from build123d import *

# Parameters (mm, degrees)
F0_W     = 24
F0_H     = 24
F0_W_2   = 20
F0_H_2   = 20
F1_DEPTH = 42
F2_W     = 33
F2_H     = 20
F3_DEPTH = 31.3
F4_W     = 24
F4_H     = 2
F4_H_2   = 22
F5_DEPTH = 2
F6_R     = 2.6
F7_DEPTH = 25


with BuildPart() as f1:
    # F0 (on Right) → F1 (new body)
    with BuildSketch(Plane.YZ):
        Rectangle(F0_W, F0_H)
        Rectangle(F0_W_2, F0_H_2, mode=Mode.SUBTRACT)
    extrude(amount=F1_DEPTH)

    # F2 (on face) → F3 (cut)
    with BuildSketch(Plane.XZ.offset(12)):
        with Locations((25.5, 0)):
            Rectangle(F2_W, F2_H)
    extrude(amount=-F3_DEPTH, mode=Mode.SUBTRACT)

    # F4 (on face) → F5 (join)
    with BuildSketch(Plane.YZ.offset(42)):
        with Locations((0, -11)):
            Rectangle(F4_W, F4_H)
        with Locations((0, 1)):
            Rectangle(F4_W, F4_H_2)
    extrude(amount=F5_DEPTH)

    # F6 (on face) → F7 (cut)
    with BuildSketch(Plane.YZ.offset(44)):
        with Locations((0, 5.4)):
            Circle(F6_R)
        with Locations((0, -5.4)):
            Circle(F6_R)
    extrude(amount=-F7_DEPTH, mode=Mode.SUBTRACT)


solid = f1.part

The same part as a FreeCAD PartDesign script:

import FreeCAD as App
import Part
import Sketcher
from FreeCAD import Vector

doc = App.newDocument("Part")
body = doc.addObject("PartDesign::Body", "Body")

# Sketch on YZ plane
sketch1 = body.newObject("Sketcher::SketchObject", "Sketch")
sketch1.AttachmentSupport = (doc.getObject("YZ_Plane"), [""])
sketch1.MapMode = "FlatFace"
sketch1.addGeometry([
    Part.LineSegment(Vector(-12, 12, 0), Vector(-12, -12, 0)),  # 0
    Part.LineSegment(Vector(-12, -12, 0), Vector(12, -12, 0)),  # 1
    Part.LineSegment(Vector(12, -12, 0), Vector(12, 12, 0)),  # 2
    Part.LineSegment(Vector(12, 12, 0), Vector(-12, 12, 0)),  # 3
    Part.LineSegment(Vector(10, -10, 0), Vector(-10, -10, 0)),  # 4
    Part.LineSegment(Vector(-10, -10, 0), Vector(-10, 10, 0)),  # 5
    Part.LineSegment(Vector(-10, 10, 0), Vector(10, 10, 0)),  # 6
    Part.LineSegment(Vector(10, 10, 0), Vector(10, -10, 0)),  # 7
], False)
sketch1.addConstraint([
    Sketcher.Constraint("Coincident", 0, 2, 1, 1),
    Sketcher.Constraint("Coincident", 1, 2, 2, 1),
    Sketcher.Constraint("Coincident", 2, 2, 3, 1),
    Sketcher.Constraint("Coincident", 3, 2, 0, 1),
    Sketcher.Constraint("Coincident", 4, 2, 5, 1),
    Sketcher.Constraint("Coincident", 5, 2, 6, 1),
    Sketcher.Constraint("Coincident", 6, 2, 7, 1),
    Sketcher.Constraint("Coincident", 7, 2, 4, 1),
    Sketcher.Constraint("Vertical", 0),
    Sketcher.Constraint("Horizontal", 1),
    Sketcher.Constraint("Vertical", 2),
    Sketcher.Constraint("Horizontal", 3),
    Sketcher.Constraint("Horizontal", 4),
    Sketcher.Constraint("Vertical", 5),
    Sketcher.Constraint("Horizontal", 6),
    Sketcher.Constraint("Vertical", 7),
    Sketcher.Constraint("Symmetric", 0, 2, 2, 2, -1, 1),
    Sketcher.Constraint("Symmetric", 4, 2, 6, 2, -1, 1),
    Sketcher.Constraint("Equal", 3, 0),
    Sketcher.Constraint("Equal", 6, 5),
    Sketcher.Constraint("DistanceX", 1, 1, 1, 2, 24.0),
    Sketcher.Constraint("DistanceX", 4, 2, 4, 1, 20.0),
])
pad1 = body.newObject("PartDesign::Pad", "Pad")
pad1.Profile = sketch1
pad1.Length = 42

# Sketch on XZ plane
sketch2 = body.newObject("Sketcher::SketchObject", "Sketch001")
sketch2.AttachmentSupport = (doc.getObject("XZ_Plane"), [""])
sketch2.MapMode = "FlatFace"
sketch2.AttachmentOffset = App.Placement(Vector(0, 0, 12), App.Rotation())
sketch2.addGeometry([
    Part.LineSegment(Vector(9, 10, 0), Vector(9, -10, 0)),
    Part.LineSegment(Vector(9, -10, 0), Vector(42, -10, 0)),
    Part.LineSegment(Vector(42, -10, 0), Vector(42, 10, 0)),
    Part.LineSegment(Vector(42, 10, 0), Vector(9, 10, 0)),
], False)
sketch2.addConstraint([
    Sketcher.Constraint("Coincident", 0, 2, 1, 1),
    Sketcher.Constraint("Coincident", 1, 2, 2, 1),
    Sketcher.Constraint("Coincident", 2, 2, 3, 1),
    Sketcher.Constraint("Coincident", 3, 2, 0, 1),
    Sketcher.Constraint("Vertical", 0),
    Sketcher.Constraint("Horizontal", 1),
    Sketcher.Constraint("Vertical", 2),
    Sketcher.Constraint("Horizontal", 3),
    Sketcher.Constraint("DistanceX", 1, 1, 1, 2, 33.0),
    Sketcher.Constraint("DistanceY", 0, 2, 0, 1, 20.0),
    Sketcher.Constraint("DistanceX", -1, 1, 0, 2, 9.0),
    Sketcher.Constraint("DistanceY", 0, 2, -1, 1, 10.0),
])
pocket1 = body.newObject("PartDesign::Pocket", "Pocket")
pocket1.Profile = sketch2
pocket1.Length = 31.3

# Sketch on YZ plane
sketch3 = body.newObject("Sketcher::SketchObject", "Sketch002")
sketch3.AttachmentSupport = (doc.getObject("YZ_Plane"), [""])
sketch3.MapMode = "FlatFace"
sketch3.AttachmentOffset = App.Placement(Vector(0, 0, 42), App.Rotation())
sketch3.addGeometry([
    Part.LineSegment(Vector(-12, -12, 0), Vector(12, -12, 0)),
    Part.LineSegment(Vector(12, -12, 0), Vector(12, 12, 0)),
    Part.LineSegment(Vector(12, 12, 0), Vector(-12, 12, 0)),
    Part.LineSegment(Vector(-12, 12, 0), Vector(-12, -12, 0)),
], False)
sketch3.addConstraint([
    Sketcher.Constraint("Coincident", 0, 2, 1, 1),
    Sketcher.Constraint("Coincident", 1, 2, 2, 1),
    Sketcher.Constraint("Coincident", 2, 2, 3, 1),
    Sketcher.Constraint("Coincident", 3, 2, 0, 1),
    Sketcher.Constraint("Horizontal", 0),
    Sketcher.Constraint("Vertical", 1),
    Sketcher.Constraint("Horizontal", 2),
    Sketcher.Constraint("Vertical", 3),
    Sketcher.Constraint("Symmetric", 0, 2, 2, 2, -1, 1),
    Sketcher.Constraint("Equal", 2, 1),
    Sketcher.Constraint("DistanceX", 0, 1, 0, 2, 24.0),
])
pad2 = body.newObject("PartDesign::Pad", "Pad001")
pad2.Profile = sketch3
pad2.Length = 2

# Sketch on YZ plane
sketch4 = body.newObject("Sketcher::SketchObject", "Sketch003")
sketch4.AttachmentSupport = (doc.getObject("YZ_Plane"), [""])
sketch4.MapMode = "FlatFace"
sketch4.AttachmentOffset = App.Placement(Vector(0, 0, 44), App.Rotation())
sketch4.addGeometry([
    Part.Circle(Vector(0, 5.4, 0), Vector(0, 0, 1), 2.6),
    Part.Circle(Vector(0, -5.4, 0), Vector(0, 0, 1), 2.6),
], False)
sketch4.addConstraint([
    Sketcher.Constraint("Equal", 0, 1),
    Sketcher.Constraint("Symmetric", 0, 3, 1, 3, -1, 1),
    Sketcher.Constraint("PointOnObject", 0, 3, -2),
    Sketcher.Constraint("Diameter", 0, 5.2),
    Sketcher.Constraint("DistanceY", -1, 1, 0, 3, 5.4),
])
pocket2 = body.newObject("PartDesign::Pocket", "Pocket001")
pocket2.Profile = sketch4
pocket2.Length = 25

doc.recompute()
